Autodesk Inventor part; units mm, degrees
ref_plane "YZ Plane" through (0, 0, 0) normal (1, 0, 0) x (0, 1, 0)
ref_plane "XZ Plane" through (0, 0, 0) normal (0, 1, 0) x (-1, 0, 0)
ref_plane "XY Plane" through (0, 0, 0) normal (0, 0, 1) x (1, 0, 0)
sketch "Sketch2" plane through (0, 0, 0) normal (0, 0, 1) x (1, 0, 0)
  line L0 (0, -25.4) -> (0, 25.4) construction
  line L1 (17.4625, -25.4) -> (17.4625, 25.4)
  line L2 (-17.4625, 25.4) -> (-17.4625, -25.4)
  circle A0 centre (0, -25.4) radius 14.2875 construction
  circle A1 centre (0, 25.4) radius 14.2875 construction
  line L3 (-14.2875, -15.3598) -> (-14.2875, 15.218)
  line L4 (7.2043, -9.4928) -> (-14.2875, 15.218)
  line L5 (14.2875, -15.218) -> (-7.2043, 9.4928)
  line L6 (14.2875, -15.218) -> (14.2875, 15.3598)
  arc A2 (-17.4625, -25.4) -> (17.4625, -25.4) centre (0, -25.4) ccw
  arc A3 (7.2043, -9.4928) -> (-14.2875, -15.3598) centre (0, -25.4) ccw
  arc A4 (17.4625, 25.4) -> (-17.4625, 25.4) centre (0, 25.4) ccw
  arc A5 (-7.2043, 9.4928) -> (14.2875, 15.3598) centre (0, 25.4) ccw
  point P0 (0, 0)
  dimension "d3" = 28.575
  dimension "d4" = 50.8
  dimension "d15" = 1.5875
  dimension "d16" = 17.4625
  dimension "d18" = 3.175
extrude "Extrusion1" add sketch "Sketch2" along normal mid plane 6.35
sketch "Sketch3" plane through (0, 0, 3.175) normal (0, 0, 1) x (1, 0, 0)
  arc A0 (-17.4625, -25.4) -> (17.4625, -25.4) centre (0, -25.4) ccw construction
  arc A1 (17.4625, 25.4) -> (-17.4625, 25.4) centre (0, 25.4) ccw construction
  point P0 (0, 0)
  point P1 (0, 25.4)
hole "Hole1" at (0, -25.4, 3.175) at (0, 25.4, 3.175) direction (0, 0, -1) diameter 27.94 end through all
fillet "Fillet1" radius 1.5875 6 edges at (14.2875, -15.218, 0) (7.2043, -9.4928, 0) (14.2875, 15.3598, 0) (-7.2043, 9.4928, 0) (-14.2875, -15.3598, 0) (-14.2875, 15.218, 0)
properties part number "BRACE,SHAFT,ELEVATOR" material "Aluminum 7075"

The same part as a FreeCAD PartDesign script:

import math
import FreeCAD as App
import Part
import Sketcher
Q = App.Units.Quantity


def edges_at(feature, points):
    """Names of the edges that pass closest to the given points."""
    edges = feature.Shape.Edges
    near = lambda p: min(range(len(edges)), key=lambda i: edges[i].distToShape(Part.Vertex(*p))[0])
    return sorted({f"Edge{near(p) + 1}" for p in points})

doc = App.newDocument("Part")
body = doc.addObject("PartDesign::Body", "Body")

# Sketch on XY plane
sketch1 = doc.addObject("Sketcher::SketchObject", "Sketch")
body.addObject(sketch1)
sketch1.AttachmentSupport = (doc.XY_Plane, [""])
sketch1.MapMode = "FlatFace"
sketch1.addGeometry([
    Part.ArcOfCircle(Part.Circle(App.Vector(0, -25, 0), App.Vector(0, 0, 1), 17), math.radians(180), math.radians(360)),  # 0
    Part.LineSegment(App.Vector(17, -25, 0), App.Vector(17, 25, 0)),  # 1
    Part.ArcOfCircle(Part.Circle(App.Vector(0, 25, 0), App.Vector(0, 0, 1), 17), math.radians(0), math.radians(180)),  # 2
    Part.LineSegment(App.Vector(-17, 25, 0), App.Vector(-17, -25, 0)),  # 3
    Part.ArcOfCircle(Part.Circle(App.Vector(0, -25, 0), App.Vector(0, 0, 1), 17), math.radians(66), math.radians(145)),  # 4
    Part.LineSegment(App.Vector(-14, -15, 0), App.Vector(-14, 15, 0)),  # 5
    Part.LineSegment(App.Vector(-14, 15, 0), App.Vector(7, -9, 0)),  # 6
    Part.LineSegment(App.Vector(14, 15, 0), App.Vector(14, -15, 0)),  # 7
    Part.LineSegment(App.Vector(14, -15, 0), App.Vector(-7, 9, 0)),  # 8
    Part.ArcOfCircle(Part.Circle(App.Vector(0, 25, 0), App.Vector(0, 0, 1), 17), math.radians(-114), math.radians(-35)),  # 9
], False)
sketch1.addConstraint([
    Sketcher.Constraint("Tangent", 0, 2, 1, 1),
    Sketcher.Constraint("Tangent", 1, 2, 2, 1),
    Sketcher.Constraint("Tangent", 2, 2, 3, 1),
    Sketcher.Constraint("Tangent", 3, 2, 0, 1),
    Sketcher.Constraint("Coincident", 4, 2, 5, 1),
    Sketcher.Constraint("Coincident", 5, 2, 6, 1),
    Sketcher.Constraint("Coincident", 6, 2, 4, 1),
    Sketcher.Constraint("Coincident", 7, 2, 8, 1),
    Sketcher.Constraint("Coincident", 8, 2, 9, 1),
    Sketcher.Constraint("Coincident", 9, 2, 7, 1),
    Sketcher.Constraint("Vertical", 1),
    Sketcher.Constraint("Vertical", 3),
    Sketcher.Constraint("Vertical", 5),
    Sketcher.Constraint("Vertical", 7),
    Sketcher.Constraint("Coincident", 4, 3, 0, 3),
    Sketcher.Constraint("Coincident", 9, 3, 2, 3),
    Sketcher.Constraint("Equal", 2, 4),
    Sketcher.Constraint("Equal", 4, 9),
    Sketcher.Constraint("Symmetric", 0, 3, 2, 3, -1, 1),
    Sketcher.Constraint("Symmetric", 5, 2, 7, 2, -1, 1),
    Sketcher.Constraint("Parallel", 6, 8),
    Sketcher.Constraint("DistanceY", 1, 1, 1, 2, Q("2 in")),
    Sketcher.Constraint("Radius", 0, Q("0.6875 in")),
    Sketcher.Constraint("DistanceX", 3, 2, 4, 2, Q("0.125 in")),
    Sketcher.Constraint("DistanceY", 5, 1, 5, 2, Q("30.5778 mm")),
    Sketcher.Constraint("DistanceY", 7, 2, 6, 2, Q("0.2254 in")),
])
pad1 = doc.addObject("PartDesign::Pad", "Pad")
body.addObject(pad1)
pad1.Profile = sketch1
pad1.Length = Q("0.25 in")
pad1.Midplane = True

# Sketch on XY plane
sketch2 = doc.addObject("Sketcher::SketchObject", "Sketch001")
body.addObject(sketch2)
sketch2.AttachmentSupport = (doc.XY_Plane, [""])
sketch2.MapMode = "FlatFace"
sketch2.AttachmentOffset = App.Placement(App.Vector(0, 0, 0.125 * 25.4), App.Rotation())
sketch2.addGeometry([
    Part.Circle(App.Vector(0, -25, 0), App.Vector(0, 0, 1), 14),
    Part.Circle(App.Vector(0, 25, 0), App.Vector(0, 0, 1), 14),
], False)
sketch2.addConstraint([
    Sketcher.Constraint("Equal", 0, 1),
    Sketcher.Constraint("Symmetric", 0, 3, 1, 3, -1, 1),
    Sketcher.Constraint("PointOnObject", 0, 3, -2),
    Sketcher.Constraint("Diameter", 0, Q("1.1 in")),
    Sketcher.Constraint("DistanceY", 0, 3, -1, 1, Q("1 in")),
])
doc.recompute()
hole = doc.addObject("PartDesign::Hole", "Hole")
body.addObject(hole)
hole.Profile = sketch2
hole.ThreadType = "None"
hole.Diameter = Q("1.1 in")
hole.DepthType = "ThroughAll"
doc.recompute()

fillet = doc.addObject("PartDesign::Fillet", "Fillet")
body.addObject(fillet)
fillet.Base = (hole, edges_at(hole, [
    (14.287, -15.218, 0),
    (7.204, -9.493, 0),
    (14.287, 15.36, 0),
    (-7.204, 9.493, 0),
    (-14.287, -15.36, 0),
    (-14.287, 15.218, 0),
]))
fillet.Radius = Q("0.0625 in")

doc.recompute()
